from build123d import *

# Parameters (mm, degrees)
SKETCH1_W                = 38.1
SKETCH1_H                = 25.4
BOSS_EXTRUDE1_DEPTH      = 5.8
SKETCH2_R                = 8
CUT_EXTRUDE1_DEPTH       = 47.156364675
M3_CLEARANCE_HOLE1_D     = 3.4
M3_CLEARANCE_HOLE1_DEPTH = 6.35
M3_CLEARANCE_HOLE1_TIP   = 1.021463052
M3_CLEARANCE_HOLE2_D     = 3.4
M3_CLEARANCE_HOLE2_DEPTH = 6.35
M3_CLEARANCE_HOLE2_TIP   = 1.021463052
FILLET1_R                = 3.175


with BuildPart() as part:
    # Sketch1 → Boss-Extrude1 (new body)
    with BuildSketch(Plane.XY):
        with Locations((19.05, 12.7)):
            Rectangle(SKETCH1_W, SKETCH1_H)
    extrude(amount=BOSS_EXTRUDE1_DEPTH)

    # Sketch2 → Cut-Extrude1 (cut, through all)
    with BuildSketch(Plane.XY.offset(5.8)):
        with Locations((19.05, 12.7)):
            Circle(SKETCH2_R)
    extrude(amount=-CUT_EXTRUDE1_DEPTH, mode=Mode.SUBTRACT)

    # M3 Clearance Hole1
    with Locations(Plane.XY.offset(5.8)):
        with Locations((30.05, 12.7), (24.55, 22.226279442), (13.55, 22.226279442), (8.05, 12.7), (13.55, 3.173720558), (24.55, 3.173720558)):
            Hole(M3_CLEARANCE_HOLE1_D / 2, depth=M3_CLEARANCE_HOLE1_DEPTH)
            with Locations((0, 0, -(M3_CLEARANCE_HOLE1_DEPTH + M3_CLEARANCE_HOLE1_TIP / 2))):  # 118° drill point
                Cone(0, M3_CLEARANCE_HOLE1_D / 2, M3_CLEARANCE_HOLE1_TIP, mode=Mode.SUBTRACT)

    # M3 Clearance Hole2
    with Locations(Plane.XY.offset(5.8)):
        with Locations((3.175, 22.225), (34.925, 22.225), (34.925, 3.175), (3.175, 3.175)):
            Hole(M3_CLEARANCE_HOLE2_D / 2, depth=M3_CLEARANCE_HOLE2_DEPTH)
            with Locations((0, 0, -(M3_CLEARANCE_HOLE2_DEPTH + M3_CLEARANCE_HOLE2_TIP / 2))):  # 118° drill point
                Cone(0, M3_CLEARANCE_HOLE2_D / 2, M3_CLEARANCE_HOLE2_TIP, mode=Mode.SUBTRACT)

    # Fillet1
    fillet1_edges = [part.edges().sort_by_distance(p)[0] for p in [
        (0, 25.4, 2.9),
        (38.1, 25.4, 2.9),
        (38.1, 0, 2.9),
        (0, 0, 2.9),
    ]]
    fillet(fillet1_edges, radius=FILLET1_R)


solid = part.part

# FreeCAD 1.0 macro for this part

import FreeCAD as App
import Part
import Sketcher
from FreeCAD import Vector
Q = App.Units.Quantity


def edges_at(feature, points):
    """Names of the edges that pass closest to the given points."""
    edges = feature.Shape.Edges
    near = lambda p: min(range(len(edges)), key=lambda i: edges[i].distToShape(Part.Vertex(*p))[0])
    return sorted({f"Edge{near(p) + 1}" for p in points})


def add_polygon(sketch, points):
    """Adds a closed chain of lines whose ends are joined by coincident constraints."""
    first, n = sketch.GeometryCount, len(points)
    for a, b in zip(points, points[1:] + points[:1]):
        sketch.addGeometry(Part.LineSegment(App.Vector(*a, 0), App.Vector(*b, 0)), False)
    for i in range(n):
        sketch.addConstraint(Sketcher.Constraint("Coincident", first + i, 2, first + (i + 1) % n, 1))

doc = App.newDocument("Part")
body = doc.addObject("PartDesign::Body", "Body")

sketch1 = doc.addObject("Sketcher::SketchObject", "Sketch")
body.addObject(sketch1)
sketch1.AttachmentSupport = (doc.XY_Plane, [""])
sketch1.MapMode = "FlatFace"
add_polygon(sketch1, [(0, 25.4), (0, 0), (38.1, 0), (38.1, 25.4)])
sketch1.addConstraint([
    Sketcher.Constraint("Vertical", 0),
    Sketcher.Constraint("Horizontal", 1),
    Sketcher.Constraint("Vertical", 2),
    Sketcher.Constraint("Horizontal", 3),
    Sketcher.Constraint("Coincident", 0, 2, -1, 1),
    Sketcher.Constraint("DistanceY", 0, 2, 0, 1, Q("1 in")),
    Sketcher.Constraint("DistanceX", 1, 1, 1, 2, Q("1.5 in")),
])
pad1 = doc.addObject("PartDesign::Pad", "Pad")
body.addObject(pad1)
pad1.Profile = sketch1
pad1.Length = 5.8

sketch2 = doc.addObject("Sketcher::SketchObject", "Sketch001")
body.addObject(sketch2)
sketch2.AttachmentSupport = (doc.XY_Plane, [""])
sketch2.MapMode = "FlatFace"
sketch2.AttachmentOffset = App.Placement(Vector(0, 0, 5.8), App.Rotation())
sketch2.addGeometry(Part.Circle(Vector(19.05, 12.7, 0), Vector(0, 0, 1), 8), False)
sketch2.addConstraint([
    Sketcher.Constraint("DistanceY", -1, 1, 0, 3, Q("0.5 in")),
    Sketcher.Constraint("Diameter", 0, 16.0),
    Sketcher.Constraint("DistanceX", -1, 1, 0, 3, Q("0.75 in")),
])
pocket1 = doc.addObject("PartDesign::Pocket", "Pocket")
body.addObject(pocket1)
pocket1.Profile = sketch2
pocket1.Type = "ThroughAll"

sketch3 = doc.addObject("Sketcher::SketchObject", "Sketch002")
body.addObject(sketch3)
sketch3.AttachmentSupport = (doc.XY_Plane, [""])
sketch3.MapMode = "FlatFace"
sketch3.AttachmentOffset = App.Placement(Vector(0, 0, 5.8), App.Rotation())
sketch3.addGeometry([
    Part.Circle(Vector(30.05, 12.7, 0), Vector(0, 0, 1), 1.7),
    Part.Circle(Vector(24.55, 22.226279, 0), Vector(0, 0, 1), 1.7),
    Part.Circle(Vector(13.55, 22.226279, 0), Vector(0, 0, 1), 1.7),
    Part.Circle(Vector(8.05, 12.7, 0), Vector(0, 0, 1), 1.7),
    Part.Circle(Vector(13.55, 3.173721, 0), Vector(0, 0, 1), 1.7),
    Part.Circle(Vector(24.55, 3.173721, 0), Vector(0, 0, 1), 1.7),
], False)
sketch3.addConstraint([
    Sketcher.Constraint("Equal", 0, 1),
    Sketcher.Constraint("Equal", 1, 2),
    Sketcher.Constraint("Equal", 2, 3),
    Sketcher.Constraint("Equal", 3, 4),
    Sketcher.Constraint("Equal", 4, 5),
    Sketcher.Constraint("Horizontal", 1, 3, 2, 3),
    Sketcher.Constraint("Horizontal", 0, 3, 3, 3),
    Sketcher.Constraint("Horizontal", 4, 3, 5, 3),
    Sketcher.Constraint("Vertical", 2, 3, 4, 3),
    Sketcher.Constraint("Vertical", 1, 3, 5, 3),
    Sketcher.Constraint("DistanceY", -1, 1, 0, 3, Q("0.5 in")),
    Sketcher.Constraint("Diameter", 0, 3.4),
    Sketcher.Constraint("DistanceX", -1, 1, 0, 3, 30.05),
    Sketcher.Constraint("DistanceX", -1, 1, 1, 3, 24.55),
    Sketcher.Constraint("DistanceX", -1, 1, 2, 3, 13.55),
    Sketcher.Constraint("DistanceX", -1, 1, 3, 3, 8.05),
    Sketcher.Constraint("DistanceY", -1, 1, 1, 3, 22.226279),
    Sketcher.Constraint("DistanceY", -1, 1, 4, 3, 3.173721),
])
doc.recompute()
hole = doc.addObject("PartDesign::Hole", "Hole")
body.addObject(hole)
hole.Profile = sketch3
hole.ThreadType = "None"
hole.Diameter = 3.4
hole.DepthType = "Dimension"
hole.Depth = Q("0.25 in")
hole.DrillPoint = "Angled"
hole.DrillPointAngle = 118

sketch4 = doc.addObject("Sketcher::SketchObject", "Sketch003")
body.addObject(sketch4)
sketch4.AttachmentSupport = (doc.XY_Plane, [""])
sketch4.MapMode = "FlatFace"
sketch4.AttachmentOffset = App.Placement(Vector(0, 0, 5.8), App.Rotation())
sketch4.addGeometry([
    Part.Circle(Vector(3.175, 22.225, 0), Vector(0, 0, 1), 1.7),
    Part.Circle(Vector(34.925, 22.225, 0), Vector(0, 0, 1), 1.7),
    Part.Circle(Vector(34.925, 3.175, 0), Vector(0, 0, 1), 1.7),
    Part.Circle(Vector(3.175, 3.175, 0), Vector(0, 0, 1), 1.7),
], False)
sketch4.addConstraint([
    Sketcher.Constraint("Equal", 0, 1),
    Sketcher.Constraint("Equal", 1, 2),
    Sketcher.Constraint("Equal", 2, 3),
    Sketcher.Constraint("Horizontal", 0, 3, 1, 3),
    Sketcher.Constraint("Horizontal", 2, 3, 3, 3),
    Sketcher.Constraint("Vertical", 1, 3, 2, 3),
    Sketcher.Constraint("Vertical", 0, 3, 3, 3),
    Sketcher.Constraint("Diameter", 0, 3.4),
    Sketcher.Constraint("DistanceX", 0, 3, 1, 3, Q("1.25 in")),
    Sketcher.Constraint("DistanceY", 2, 3, 1, 3, Q("0.75 in")),
    Sketcher.Constraint("DistanceX", -1, 1, 0, 3, Q("0.125 in")),
    Sketcher.Constraint("DistanceY", -1, 1, 0, 3, Q("0.875 in")),
])
doc.recompute()
hole2 = doc.addObject("PartDesign::Hole", "Hole001")
body.addObject(hole2)
hole2.Profile = sketch4
hole2.ThreadType = "None"
hole2.Diameter = 3.4
hole2.DepthType = "Dimension"
hole2.Depth = Q("0.25 in")
hole2.DrillPoint = "Angled"
hole2.DrillPointAngle = 118
doc.recompute()

fillet = doc.addObject("PartDesign::Fillet", "Fillet")
body.addObject(fillet)
fillet.Base = (hole2, edges_at(hole2, [
    (0, 25.4, 2.9),
    (38.1, 25.4, 2.9),
    (38.1, 0, 2.9),
    (0, 0, 2.9),
]))
fillet.Radius = Q("0.125 in")

doc.recompute()
